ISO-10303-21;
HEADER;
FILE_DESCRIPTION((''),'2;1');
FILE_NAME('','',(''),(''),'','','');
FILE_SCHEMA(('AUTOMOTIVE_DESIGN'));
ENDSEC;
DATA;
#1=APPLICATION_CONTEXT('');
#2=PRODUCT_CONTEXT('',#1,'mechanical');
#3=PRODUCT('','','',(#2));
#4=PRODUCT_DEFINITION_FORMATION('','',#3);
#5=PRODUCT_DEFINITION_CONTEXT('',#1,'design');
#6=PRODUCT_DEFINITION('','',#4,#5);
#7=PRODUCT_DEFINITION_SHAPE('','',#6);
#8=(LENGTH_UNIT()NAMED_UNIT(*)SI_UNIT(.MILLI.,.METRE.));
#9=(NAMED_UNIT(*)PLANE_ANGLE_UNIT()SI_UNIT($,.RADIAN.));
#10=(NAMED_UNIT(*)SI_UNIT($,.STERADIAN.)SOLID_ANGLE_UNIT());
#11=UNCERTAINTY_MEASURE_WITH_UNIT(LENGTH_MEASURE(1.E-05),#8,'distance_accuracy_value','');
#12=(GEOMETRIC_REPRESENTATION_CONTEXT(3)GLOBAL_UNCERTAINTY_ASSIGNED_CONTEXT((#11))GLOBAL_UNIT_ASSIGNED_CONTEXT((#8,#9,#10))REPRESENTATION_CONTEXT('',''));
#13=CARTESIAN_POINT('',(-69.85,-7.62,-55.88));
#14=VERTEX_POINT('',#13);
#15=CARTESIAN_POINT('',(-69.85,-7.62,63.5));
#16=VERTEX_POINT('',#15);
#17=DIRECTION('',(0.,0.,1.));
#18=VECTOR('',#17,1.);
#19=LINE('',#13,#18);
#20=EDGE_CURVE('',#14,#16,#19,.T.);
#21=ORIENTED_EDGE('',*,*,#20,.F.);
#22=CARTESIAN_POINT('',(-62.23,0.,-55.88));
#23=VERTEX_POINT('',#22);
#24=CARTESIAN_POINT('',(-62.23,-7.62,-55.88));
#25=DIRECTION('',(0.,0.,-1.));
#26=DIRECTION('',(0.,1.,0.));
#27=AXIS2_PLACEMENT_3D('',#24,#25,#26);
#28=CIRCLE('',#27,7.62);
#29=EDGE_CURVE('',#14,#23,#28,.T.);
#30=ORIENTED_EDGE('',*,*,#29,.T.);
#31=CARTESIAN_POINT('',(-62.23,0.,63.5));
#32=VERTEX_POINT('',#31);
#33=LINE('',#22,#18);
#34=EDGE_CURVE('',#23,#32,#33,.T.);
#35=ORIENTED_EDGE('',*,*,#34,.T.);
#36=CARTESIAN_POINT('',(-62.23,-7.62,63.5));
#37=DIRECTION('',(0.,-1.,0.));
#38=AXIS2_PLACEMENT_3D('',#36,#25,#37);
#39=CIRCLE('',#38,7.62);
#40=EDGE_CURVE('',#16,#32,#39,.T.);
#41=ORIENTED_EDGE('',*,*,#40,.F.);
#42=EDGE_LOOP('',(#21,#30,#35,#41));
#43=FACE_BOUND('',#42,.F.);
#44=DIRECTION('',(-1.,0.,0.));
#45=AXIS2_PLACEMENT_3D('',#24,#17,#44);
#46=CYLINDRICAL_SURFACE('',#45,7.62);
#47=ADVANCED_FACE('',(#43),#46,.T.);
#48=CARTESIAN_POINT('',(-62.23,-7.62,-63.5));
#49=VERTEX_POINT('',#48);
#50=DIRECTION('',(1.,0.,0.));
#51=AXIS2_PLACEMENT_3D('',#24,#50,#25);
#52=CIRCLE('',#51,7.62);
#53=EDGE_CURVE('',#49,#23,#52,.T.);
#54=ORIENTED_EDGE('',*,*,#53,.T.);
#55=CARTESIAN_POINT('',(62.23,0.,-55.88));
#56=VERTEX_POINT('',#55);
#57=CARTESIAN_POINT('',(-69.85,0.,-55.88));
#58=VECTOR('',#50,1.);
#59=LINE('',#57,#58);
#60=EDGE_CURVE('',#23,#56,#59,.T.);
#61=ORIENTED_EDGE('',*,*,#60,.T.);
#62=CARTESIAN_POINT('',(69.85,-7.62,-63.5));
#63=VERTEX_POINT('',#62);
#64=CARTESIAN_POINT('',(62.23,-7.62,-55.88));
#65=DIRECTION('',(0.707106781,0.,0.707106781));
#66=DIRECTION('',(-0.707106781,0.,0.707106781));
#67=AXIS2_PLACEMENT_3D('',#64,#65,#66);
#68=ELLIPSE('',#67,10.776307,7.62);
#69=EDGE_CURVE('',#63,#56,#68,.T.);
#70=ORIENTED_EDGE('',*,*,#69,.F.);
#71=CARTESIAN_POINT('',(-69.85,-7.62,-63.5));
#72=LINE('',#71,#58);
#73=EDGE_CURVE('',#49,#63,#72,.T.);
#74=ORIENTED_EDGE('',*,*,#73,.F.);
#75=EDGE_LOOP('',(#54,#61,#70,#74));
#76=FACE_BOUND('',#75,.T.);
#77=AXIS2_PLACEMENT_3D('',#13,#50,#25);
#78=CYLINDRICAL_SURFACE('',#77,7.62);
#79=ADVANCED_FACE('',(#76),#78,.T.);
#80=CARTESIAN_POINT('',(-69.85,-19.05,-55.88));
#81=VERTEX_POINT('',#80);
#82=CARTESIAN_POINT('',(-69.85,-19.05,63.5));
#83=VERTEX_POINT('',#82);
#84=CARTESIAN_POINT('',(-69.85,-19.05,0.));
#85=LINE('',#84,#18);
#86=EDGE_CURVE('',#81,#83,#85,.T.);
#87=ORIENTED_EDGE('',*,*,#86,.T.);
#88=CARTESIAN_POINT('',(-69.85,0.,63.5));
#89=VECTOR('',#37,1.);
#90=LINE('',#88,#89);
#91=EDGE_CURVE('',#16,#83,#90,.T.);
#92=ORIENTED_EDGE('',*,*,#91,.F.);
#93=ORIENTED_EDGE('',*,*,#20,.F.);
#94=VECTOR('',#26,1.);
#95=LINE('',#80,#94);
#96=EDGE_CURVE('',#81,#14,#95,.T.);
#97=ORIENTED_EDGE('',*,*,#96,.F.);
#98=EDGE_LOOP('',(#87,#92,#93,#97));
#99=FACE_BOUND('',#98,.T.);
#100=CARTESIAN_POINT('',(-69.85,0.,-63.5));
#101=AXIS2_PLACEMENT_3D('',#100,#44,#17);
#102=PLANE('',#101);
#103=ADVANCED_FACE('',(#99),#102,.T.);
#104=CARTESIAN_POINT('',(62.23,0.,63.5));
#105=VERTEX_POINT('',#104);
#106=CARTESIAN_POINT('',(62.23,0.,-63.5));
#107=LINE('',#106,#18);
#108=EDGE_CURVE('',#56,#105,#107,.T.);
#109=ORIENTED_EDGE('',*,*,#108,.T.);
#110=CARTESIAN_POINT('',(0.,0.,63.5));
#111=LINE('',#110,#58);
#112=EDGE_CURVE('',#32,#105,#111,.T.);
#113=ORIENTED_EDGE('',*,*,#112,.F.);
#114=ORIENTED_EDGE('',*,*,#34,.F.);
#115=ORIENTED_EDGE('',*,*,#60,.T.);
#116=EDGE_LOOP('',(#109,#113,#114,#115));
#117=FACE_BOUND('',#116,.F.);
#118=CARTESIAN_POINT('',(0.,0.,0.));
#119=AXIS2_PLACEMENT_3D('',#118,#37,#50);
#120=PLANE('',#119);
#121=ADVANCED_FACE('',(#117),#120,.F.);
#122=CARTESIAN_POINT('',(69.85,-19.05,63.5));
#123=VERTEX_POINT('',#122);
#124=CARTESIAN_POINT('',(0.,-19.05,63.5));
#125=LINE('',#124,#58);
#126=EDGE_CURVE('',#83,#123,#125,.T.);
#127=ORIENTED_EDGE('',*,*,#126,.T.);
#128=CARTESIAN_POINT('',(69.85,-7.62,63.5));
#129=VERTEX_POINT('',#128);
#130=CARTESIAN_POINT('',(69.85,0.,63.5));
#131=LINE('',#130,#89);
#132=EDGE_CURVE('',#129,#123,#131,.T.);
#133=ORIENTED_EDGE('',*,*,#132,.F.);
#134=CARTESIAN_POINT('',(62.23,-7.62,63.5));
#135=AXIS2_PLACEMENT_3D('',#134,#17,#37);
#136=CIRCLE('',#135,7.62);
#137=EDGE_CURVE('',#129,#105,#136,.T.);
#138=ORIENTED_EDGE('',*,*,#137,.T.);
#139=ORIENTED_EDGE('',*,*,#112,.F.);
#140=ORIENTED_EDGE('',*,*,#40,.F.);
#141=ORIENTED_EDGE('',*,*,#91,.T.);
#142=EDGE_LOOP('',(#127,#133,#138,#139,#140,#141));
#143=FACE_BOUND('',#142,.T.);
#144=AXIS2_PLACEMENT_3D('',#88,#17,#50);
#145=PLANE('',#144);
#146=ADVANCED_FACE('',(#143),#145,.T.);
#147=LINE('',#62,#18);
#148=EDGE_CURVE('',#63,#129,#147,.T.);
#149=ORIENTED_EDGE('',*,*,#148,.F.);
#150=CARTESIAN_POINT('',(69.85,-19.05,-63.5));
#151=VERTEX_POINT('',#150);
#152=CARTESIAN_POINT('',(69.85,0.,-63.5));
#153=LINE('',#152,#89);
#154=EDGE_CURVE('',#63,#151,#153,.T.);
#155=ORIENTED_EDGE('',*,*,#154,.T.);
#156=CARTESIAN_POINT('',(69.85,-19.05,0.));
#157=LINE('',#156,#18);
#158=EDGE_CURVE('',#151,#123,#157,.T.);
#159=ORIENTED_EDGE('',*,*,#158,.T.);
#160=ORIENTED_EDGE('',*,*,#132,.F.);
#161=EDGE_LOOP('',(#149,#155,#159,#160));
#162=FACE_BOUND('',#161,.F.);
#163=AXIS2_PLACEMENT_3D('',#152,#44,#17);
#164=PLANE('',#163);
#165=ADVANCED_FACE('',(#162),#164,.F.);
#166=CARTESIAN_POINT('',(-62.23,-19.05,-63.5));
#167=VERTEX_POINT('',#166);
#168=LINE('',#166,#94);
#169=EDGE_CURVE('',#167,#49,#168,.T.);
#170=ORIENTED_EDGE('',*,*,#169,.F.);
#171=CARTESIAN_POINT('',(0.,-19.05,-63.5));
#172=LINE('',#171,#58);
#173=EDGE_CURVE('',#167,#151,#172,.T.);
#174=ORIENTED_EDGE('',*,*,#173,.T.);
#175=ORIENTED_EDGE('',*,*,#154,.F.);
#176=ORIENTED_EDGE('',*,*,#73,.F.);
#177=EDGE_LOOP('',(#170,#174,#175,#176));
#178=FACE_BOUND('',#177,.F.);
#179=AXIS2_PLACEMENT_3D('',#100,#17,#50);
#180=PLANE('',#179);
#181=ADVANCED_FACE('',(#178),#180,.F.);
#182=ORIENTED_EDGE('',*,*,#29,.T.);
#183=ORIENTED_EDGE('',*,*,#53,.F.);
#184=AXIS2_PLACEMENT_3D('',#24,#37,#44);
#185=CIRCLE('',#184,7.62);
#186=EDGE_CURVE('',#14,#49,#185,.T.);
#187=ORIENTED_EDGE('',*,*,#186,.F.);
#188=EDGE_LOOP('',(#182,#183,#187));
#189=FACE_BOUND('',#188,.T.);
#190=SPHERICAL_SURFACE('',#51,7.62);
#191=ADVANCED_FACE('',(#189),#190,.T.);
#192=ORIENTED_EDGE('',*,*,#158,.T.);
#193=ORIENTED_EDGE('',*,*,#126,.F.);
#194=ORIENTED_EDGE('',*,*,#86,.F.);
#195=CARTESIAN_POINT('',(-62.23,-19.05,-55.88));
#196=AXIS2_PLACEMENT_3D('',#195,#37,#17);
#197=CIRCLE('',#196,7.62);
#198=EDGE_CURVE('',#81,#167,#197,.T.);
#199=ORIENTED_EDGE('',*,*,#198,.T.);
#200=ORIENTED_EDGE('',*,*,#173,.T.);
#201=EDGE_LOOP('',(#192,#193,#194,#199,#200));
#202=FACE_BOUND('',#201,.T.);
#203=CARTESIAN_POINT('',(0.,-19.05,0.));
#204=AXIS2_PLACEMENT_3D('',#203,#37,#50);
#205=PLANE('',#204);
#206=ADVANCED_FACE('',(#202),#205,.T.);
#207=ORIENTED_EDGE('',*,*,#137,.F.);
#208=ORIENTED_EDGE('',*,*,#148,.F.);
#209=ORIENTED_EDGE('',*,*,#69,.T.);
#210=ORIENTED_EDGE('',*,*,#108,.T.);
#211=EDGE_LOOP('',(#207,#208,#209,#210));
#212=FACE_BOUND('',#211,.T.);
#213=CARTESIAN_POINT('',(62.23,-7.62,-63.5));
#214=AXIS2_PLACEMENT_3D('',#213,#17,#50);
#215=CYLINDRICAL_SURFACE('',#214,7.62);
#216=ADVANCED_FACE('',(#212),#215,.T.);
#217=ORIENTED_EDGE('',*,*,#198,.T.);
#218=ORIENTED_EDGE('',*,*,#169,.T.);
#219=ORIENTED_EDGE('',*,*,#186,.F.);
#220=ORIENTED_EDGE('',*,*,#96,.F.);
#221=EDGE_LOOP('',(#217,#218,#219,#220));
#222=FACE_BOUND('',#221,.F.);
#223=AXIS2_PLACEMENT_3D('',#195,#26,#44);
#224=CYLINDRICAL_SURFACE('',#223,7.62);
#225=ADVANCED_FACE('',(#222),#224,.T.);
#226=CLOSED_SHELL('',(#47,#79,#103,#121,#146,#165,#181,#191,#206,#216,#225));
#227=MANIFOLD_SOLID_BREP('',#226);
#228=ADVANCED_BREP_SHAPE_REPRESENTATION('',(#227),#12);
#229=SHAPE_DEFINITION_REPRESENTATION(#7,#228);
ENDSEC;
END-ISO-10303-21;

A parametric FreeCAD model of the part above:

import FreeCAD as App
import Part
import Sketcher
Q = App.Units.Quantity


def edges_at(feature, points):
    """Names of the edges that pass closest to the given points."""
    edges = feature.Shape.Edges
    near = lambda p: min(range(len(edges)), key=lambda i: edges[i].distToShape(Part.Vertex(*p))[0])
    return sorted({f"Edge{near(p) + 1}" for p in points})


def add_polygon(sketch, points):
    """Adds a closed chain of lines whose ends are joined by coincident constraints."""
    first, n = sketch.GeometryCount, len(points)
    for a, b in zip(points, points[1:] + points[:1]):
        sketch.addGeometry(Part.LineSegment(App.Vector(*a, 0), App.Vector(*b, 0)), False)
    for i in range(n):
        sketch.addConstraint(Sketcher.Constraint("Coincident", first + i, 2, first + (i + 1) % n, 1))

doc = App.newDocument("Part")
body = doc.addObject("PartDesign::Body", "Body")

# Sketch on XZ plane
sketch1 = body.newObject("Sketcher::SketchObject", "Sketch")
sketch1.AttachmentSupport = (doc.getObject("XZ_Plane"), [""])
sketch1.MapMode = "FlatFace"
add_polygon(sketch1, [(-70, 64), (-70, -64), (70, -64), (70, 64)])  # lines 0-3
sketch1.addConstraint([
    Sketcher.Constraint("Vertical", 0),
    Sketcher.Constraint("Horizontal", 1),
    Sketcher.Constraint("Vertical", 2),
    Sketcher.Constraint("Horizontal", 3),
    Sketcher.Constraint("Symmetric", 0, 2, 2, 2, -1, 1),
    Sketcher.Constraint("DistanceY", 0, 2, 0, 1, Q("5 in")),
    Sketcher.Constraint("DistanceX", 1, 1, 1, 2, Q("5.5 in")),
])
pad1 = body.newObject("PartDesign::Pad", "Pad")
pad1.Profile = sketch1
pad1.Length = Q("0.75 in")
doc.recompute()

fillet = body.newObject("PartDesign::Fillet", "Fillet")
fillet.Base = (pad1, edges_at(pad1, [(69.85, 0, 0), (0, 0, -63.5)]))
fillet.Radius = Q("0.3 in")
doc.recompute()

fillet2 = body.newObject("PartDesign::Fillet", "Fillet001")
fillet2.Base = (fillet, edges_at(fillet, [(-69.85, 0, 3.81)]))
fillet2.Radius = Q("0.3 in")

doc.recompute()
